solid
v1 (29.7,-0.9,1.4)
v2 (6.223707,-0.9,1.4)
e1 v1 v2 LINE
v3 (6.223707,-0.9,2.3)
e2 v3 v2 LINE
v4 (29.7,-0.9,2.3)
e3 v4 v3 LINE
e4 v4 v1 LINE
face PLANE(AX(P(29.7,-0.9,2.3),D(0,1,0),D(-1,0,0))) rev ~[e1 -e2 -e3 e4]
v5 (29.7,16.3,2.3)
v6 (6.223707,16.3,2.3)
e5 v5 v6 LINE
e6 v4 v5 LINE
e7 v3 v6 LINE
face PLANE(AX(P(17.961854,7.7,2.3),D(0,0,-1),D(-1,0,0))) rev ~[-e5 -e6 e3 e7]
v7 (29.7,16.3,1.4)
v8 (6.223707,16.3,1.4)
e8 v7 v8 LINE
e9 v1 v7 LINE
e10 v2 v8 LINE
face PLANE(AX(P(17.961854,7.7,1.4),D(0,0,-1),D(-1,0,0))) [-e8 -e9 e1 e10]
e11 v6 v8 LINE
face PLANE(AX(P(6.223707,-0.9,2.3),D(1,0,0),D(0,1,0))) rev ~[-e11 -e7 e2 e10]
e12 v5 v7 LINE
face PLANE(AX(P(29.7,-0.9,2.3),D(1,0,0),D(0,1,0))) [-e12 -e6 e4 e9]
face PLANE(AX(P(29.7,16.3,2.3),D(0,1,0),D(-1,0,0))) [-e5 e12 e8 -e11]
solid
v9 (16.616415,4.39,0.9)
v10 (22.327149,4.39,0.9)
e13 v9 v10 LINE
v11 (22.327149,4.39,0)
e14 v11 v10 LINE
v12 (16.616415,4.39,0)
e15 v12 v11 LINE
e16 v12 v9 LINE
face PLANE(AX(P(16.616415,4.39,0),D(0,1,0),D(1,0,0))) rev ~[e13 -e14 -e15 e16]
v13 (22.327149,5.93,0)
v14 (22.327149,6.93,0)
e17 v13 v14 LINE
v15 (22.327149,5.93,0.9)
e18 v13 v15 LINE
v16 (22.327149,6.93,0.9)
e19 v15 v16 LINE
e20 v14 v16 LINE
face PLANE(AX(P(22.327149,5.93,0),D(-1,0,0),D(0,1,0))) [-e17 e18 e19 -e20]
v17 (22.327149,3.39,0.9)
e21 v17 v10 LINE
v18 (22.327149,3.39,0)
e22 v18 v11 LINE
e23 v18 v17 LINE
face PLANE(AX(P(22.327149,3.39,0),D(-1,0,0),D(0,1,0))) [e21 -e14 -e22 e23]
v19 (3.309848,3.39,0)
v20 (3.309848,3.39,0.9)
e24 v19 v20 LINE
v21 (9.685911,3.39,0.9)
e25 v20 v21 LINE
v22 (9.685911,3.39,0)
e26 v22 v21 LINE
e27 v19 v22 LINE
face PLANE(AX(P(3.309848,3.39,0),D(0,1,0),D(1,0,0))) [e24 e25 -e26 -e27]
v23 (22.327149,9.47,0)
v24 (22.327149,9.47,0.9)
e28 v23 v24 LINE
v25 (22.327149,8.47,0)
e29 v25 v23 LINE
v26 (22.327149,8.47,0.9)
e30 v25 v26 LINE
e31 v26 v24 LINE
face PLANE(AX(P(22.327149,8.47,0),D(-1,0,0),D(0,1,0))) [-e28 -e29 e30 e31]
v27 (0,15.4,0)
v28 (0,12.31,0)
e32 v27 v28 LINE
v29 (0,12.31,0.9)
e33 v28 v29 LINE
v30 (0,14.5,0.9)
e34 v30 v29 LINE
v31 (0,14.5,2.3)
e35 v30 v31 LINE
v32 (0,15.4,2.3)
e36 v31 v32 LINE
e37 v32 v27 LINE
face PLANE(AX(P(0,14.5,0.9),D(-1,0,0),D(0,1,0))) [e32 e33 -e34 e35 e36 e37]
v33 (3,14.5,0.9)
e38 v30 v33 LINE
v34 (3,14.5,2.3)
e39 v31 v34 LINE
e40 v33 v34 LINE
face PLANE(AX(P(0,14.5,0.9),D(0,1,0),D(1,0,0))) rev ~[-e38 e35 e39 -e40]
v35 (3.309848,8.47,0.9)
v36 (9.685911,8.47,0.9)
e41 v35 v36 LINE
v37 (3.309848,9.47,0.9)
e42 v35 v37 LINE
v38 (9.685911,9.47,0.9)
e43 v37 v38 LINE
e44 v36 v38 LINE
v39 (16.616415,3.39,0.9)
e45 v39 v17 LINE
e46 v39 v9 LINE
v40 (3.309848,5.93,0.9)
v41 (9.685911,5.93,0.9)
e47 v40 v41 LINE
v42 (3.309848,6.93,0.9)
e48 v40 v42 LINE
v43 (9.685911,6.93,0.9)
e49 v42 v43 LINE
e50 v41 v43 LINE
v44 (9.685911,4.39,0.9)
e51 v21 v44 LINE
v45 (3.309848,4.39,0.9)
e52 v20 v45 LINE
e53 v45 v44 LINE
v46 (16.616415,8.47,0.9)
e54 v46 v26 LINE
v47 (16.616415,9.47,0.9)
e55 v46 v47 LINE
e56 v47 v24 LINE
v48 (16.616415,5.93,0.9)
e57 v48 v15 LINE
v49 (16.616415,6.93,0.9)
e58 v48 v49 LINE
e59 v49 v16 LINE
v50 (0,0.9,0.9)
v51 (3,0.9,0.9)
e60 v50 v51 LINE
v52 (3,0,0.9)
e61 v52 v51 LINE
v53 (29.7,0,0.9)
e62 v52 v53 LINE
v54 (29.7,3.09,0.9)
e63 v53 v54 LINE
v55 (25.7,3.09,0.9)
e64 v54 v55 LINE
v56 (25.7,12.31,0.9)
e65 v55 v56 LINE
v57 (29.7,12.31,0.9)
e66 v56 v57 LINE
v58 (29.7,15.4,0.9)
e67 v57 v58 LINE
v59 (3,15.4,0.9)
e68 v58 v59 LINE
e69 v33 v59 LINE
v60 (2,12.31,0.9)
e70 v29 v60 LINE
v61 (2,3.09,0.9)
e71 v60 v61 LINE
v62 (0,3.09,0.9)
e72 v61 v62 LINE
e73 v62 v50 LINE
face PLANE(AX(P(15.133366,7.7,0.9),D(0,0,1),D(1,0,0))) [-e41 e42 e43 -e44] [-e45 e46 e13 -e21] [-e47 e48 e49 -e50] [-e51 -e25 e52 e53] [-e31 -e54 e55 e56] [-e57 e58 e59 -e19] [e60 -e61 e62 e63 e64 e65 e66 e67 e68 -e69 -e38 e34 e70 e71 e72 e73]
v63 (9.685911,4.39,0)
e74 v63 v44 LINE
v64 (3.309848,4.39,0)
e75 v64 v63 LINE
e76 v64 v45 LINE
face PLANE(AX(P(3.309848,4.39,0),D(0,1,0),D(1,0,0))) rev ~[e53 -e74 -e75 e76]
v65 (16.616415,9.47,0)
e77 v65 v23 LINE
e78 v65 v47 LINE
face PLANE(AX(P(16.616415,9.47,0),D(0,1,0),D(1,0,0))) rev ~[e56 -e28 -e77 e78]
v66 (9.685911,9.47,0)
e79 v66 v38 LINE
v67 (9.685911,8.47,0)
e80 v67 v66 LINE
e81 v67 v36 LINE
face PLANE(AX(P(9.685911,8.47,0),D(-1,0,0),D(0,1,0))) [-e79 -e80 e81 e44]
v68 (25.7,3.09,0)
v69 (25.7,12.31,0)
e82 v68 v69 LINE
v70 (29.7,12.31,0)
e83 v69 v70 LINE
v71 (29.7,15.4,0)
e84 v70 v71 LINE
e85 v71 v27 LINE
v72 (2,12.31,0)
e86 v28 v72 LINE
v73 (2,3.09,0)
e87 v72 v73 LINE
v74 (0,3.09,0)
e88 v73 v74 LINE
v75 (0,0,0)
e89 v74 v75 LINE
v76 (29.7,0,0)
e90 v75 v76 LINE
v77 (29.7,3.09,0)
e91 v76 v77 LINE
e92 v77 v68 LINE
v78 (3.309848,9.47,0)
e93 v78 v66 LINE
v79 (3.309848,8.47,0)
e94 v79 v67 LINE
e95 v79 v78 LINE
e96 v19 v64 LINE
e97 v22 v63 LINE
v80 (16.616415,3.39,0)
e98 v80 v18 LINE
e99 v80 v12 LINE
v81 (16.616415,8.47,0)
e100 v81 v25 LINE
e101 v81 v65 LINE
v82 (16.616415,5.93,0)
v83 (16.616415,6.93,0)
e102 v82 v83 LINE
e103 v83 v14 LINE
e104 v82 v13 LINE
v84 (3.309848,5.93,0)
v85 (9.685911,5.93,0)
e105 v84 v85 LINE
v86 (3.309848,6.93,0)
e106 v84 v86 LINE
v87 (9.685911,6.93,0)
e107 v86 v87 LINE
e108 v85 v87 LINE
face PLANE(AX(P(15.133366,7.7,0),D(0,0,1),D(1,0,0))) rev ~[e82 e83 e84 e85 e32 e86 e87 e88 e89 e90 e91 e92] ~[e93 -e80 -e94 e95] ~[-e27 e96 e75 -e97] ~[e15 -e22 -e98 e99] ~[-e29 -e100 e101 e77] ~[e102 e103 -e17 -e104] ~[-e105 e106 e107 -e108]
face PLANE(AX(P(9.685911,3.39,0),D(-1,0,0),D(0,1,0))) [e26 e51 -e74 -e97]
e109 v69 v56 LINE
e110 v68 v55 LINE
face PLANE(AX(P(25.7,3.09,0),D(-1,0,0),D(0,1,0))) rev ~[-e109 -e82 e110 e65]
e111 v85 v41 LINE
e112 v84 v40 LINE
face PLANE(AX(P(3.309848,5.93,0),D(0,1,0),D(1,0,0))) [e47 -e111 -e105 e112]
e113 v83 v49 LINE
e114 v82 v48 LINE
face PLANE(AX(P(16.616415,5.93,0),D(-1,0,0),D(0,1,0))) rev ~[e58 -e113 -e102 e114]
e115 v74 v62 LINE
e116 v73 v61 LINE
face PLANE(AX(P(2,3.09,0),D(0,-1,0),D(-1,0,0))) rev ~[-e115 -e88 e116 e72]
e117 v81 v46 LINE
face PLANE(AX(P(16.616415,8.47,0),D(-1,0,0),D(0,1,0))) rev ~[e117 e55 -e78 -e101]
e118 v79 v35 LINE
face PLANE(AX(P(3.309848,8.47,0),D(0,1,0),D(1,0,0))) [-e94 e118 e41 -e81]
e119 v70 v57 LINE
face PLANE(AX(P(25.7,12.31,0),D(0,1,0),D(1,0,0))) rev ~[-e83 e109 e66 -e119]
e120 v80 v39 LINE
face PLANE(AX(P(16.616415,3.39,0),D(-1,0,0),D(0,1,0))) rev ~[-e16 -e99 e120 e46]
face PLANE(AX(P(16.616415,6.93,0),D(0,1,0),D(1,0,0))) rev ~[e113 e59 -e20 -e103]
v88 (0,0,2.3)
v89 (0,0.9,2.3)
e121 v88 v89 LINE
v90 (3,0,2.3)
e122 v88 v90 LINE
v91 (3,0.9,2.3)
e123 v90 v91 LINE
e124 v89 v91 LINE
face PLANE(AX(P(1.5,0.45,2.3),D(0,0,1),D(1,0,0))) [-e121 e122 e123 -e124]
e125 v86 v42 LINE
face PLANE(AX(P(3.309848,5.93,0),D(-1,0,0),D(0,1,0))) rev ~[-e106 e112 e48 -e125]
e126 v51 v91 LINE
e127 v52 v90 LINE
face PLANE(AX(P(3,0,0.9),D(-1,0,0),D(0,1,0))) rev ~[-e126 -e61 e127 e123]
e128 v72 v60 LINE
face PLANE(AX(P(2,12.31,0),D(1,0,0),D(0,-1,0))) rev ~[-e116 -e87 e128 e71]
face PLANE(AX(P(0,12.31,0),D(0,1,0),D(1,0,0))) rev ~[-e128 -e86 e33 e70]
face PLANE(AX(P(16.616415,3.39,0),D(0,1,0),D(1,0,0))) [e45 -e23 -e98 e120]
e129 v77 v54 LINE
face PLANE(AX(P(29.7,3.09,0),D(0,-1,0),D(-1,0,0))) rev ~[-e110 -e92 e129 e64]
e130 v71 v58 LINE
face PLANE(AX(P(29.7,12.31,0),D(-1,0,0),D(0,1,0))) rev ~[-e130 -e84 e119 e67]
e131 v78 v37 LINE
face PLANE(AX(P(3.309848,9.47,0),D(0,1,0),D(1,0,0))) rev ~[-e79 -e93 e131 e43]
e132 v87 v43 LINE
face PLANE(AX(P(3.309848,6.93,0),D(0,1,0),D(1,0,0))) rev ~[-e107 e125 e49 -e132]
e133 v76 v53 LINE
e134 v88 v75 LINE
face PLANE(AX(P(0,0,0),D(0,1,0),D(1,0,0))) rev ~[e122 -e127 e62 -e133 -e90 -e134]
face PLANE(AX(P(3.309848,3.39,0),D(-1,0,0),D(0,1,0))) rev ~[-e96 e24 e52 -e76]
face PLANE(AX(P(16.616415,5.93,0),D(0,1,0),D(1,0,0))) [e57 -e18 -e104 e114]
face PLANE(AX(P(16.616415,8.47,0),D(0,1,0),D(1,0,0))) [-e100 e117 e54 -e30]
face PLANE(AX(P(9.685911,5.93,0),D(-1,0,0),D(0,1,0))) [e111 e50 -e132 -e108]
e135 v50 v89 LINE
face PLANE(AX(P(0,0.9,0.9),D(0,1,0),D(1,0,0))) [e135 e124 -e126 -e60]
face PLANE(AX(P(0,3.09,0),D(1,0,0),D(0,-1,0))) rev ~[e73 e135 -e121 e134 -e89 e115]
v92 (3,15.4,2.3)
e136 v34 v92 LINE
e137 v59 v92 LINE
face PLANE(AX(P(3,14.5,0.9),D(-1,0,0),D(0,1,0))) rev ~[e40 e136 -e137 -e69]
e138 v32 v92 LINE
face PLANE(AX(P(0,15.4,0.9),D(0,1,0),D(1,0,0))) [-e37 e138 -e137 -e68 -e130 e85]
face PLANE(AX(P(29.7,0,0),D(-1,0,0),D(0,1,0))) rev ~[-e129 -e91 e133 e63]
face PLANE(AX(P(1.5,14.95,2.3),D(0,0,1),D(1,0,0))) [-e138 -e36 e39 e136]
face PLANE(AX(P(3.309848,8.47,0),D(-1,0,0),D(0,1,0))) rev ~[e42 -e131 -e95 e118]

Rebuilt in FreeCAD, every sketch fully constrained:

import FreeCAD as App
import Part
import Sketcher


def add_polygon(sketch, points):
    """Adds a closed chain of lines whose ends are joined by coincident constraints."""
    first, n = sketch.GeometryCount, len(points)
    for a, b in zip(points, points[1:] + points[:1]):
        sketch.addGeometry(Part.LineSegment(App.Vector(*a, 0), App.Vector(*b, 0)), False)
    for i in range(n):
        sketch.addConstraint(Sketcher.Constraint("Coincident", first + i, 2, first + (i + 1) % n, 1))

doc = App.newDocument("Part")
body = doc.addObject("PartDesign::Body", "Body")

sketch1 = doc.addObject("Sketcher::SketchObject", "Sketch")
body.addObject(sketch1)
sketch1.AttachmentSupport = (doc.XY_Plane, [""])
sketch1.MapMode = "FlatFace"
add_polygon(sketch1, [(29.7, 12.3), (29.7, 15.4), (0, 15.4), (0, 12.3), (2, 12.3), (2, 3.1), (0, 3.1), (0, 0), (29.7, 0), (29.7, 3.1), (25.7, 3.1), (25.7, 12.3)])
add_polygon(sketch1, [(9.7, 3.4), (3.3, 3.4), (3.3, 4.4), (9.7, 4.4)])
add_polygon(sketch1, [(9.7, 5.9), (3.3, 5.9), (3.3, 6.9), (9.7, 6.9)])
add_polygon(sketch1, [(22.3, 3.4), (16.6, 3.4), (16.6, 4.4), (22.3, 4.4)])
add_polygon(sketch1, [(22.3, 5.9), (16.6, 5.9), (16.6, 6.9), (22.3, 6.9)])
add_polygon(sketch1, [(9.7, 8.5), (3.3, 8.5), (3.3, 9.5), (9.7, 9.5)])
add_polygon(sketch1, [(22.3, 8.5), (16.6, 8.5), (16.6, 9.5), (22.3, 9.5)])
sketch1.addConstraint(Sketcher.Constraint("Vertical", 0))
sketch1.addConstraint(Sketcher.Constraint("Horizontal", 1))
sketch1.addConstraint(Sketcher.Constraint("Vertical", 2))
sketch1.addConstraint(Sketcher.Constraint("Horizontal", 3))
sketch1.addConstraint(Sketcher.Constraint("Vertical", 4))
sketch1.addConstraint(Sketcher.Constraint("Horizontal", 5))
sketch1.addConstraint(Sketcher.Constraint("Vertical", 6))
sketch1.addConstraint(Sketcher.Constraint("Horizontal", 7))
sketch1.addConstraint(Sketcher.Constraint("Vertical", 8))
sketch1.addConstraint(Sketcher.Constraint("Horizontal", 9))
sketch1.addConstraint(Sketcher.Constraint("Vertical", 10))
sketch1.addConstraint(Sketcher.Constraint("Horizontal", 11))
sketch1.addConstraint(Sketcher.Constraint("Horizontal", 12))
sketch1.addConstraint(Sketcher.Constraint("Vertical", 13))
sketch1.addConstraint(Sketcher.Constraint("Horizontal", 14))
sketch1.addConstraint(Sketcher.Constraint("Vertical", 15))
sketch1.addConstraint(Sketcher.Constraint("Horizontal", 16))
sketch1.addConstraint(Sketcher.Constraint("Vertical", 17))
sketch1.addConstraint(Sketcher.Constraint("Horizontal", 18))
sketch1.addConstraint(Sketcher.Constraint("Vertical", 19))
sketch1.addConstraint(Sketcher.Constraint("Horizontal", 20))
sketch1.addConstraint(Sketcher.Constraint("Vertical", 21))
sketch1.addConstraint(Sketcher.Constraint("Horizontal", 22))
sketch1.addConstraint(Sketcher.Constraint("Vertical", 23))
sketch1.addConstraint(Sketcher.Constraint("Horizontal", 24))
sketch1.addConstraint(Sketcher.Constraint("Vertical", 25))
sketch1.addConstraint(Sketcher.Constraint("Horizontal", 26))
sketch1.addConstraint(Sketcher.Constraint("Vertical", 27))
sketch1.addConstraint(Sketcher.Constraint("Horizontal", 28))
sketch1.addConstraint(Sketcher.Constraint("Vertical", 29))
sketch1.addConstraint(Sketcher.Constraint("Horizontal", 30))
sketch1.addConstraint(Sketcher.Constraint("Vertical", 31))
sketch1.addConstraint(Sketcher.Constraint("Horizontal", 32))
sketch1.addConstraint(Sketcher.Constraint("Vertical", 33))
sketch1.addConstraint(Sketcher.Constraint("Horizontal", 34))
sketch1.addConstraint(Sketcher.Constraint("Vertical", 35))
sketch1.addConstraint(Sketcher.Constraint("Coincident", 6, 2, -1, 1))
sketch1.addConstraint(Sketcher.Constraint("PointOnObject", 1, 2, -2))
sketch1.addConstraint(Sketcher.Constraint("Horizontal", 5, 2, 8, 2))
sketch1.addConstraint(Sketcher.Constraint("Horizontal", 3, 2, 10, 2))
sketch1.addConstraint(Sketcher.Constraint("Horizontal", 15, 2, 20, 2))
sketch1.addConstraint(Sketcher.Constraint("Horizontal", 14, 2, 21, 2))
sketch1.addConstraint(Sketcher.Constraint("Horizontal", 19, 2, 24, 2))
sketch1.addConstraint(Sketcher.Constraint("Horizontal", 18, 2, 25, 2))
sketch1.addConstraint(Sketcher.Constraint("Horizontal", 31, 2, 32, 2))
sketch1.addConstraint(Sketcher.Constraint("Horizontal", 30, 2, 33, 2))
sketch1.addConstraint(Sketcher.Constraint("Vertical", 0, 2, 7, 2))
sketch1.addConstraint(Sketcher.Constraint("Vertical", 13, 2, 16, 2))
sketch1.addConstraint(Sketcher.Constraint("Vertical", 15, 2, 18, 2))
sketch1.addConstraint(Sketcher.Constraint("Vertical", 21, 2, 24, 2))
sketch1.addConstraint(Sketcher.Constraint("Vertical", 23, 2, 26, 2))
sketch1.addConstraint(Sketcher.Constraint("Vertical", 17, 2, 28, 2))
sketch1.addConstraint(Sketcher.Constraint("Vertical", 19, 2, 30, 2))
sketch1.addConstraint(Sketcher.Constraint("Vertical", 25, 2, 32, 2))
sketch1.addConstraint(Sketcher.Constraint("Vertical", 27, 2, 34, 2))
sketch1.addConstraint(Sketcher.Constraint("Equal", 2, 6))
sketch1.addConstraint(Sketcher.Constraint("Equal", 15, 17))
sketch1.addConstraint(Sketcher.Constraint("Equal", 27, 29))
sketch1.addConstraint(Sketcher.Constraint("DistanceX", 3, 1, 3, 2, 2.0))
sketch1.addConstraint(Sketcher.Constraint("DistanceX", 9, 2, 9, 1, 4.0))
sketch1.addConstraint(Sketcher.Constraint("DistanceY", 13, 1, 13, 2, 1.0))
sketch1.addConstraint(Sketcher.Constraint("DistanceX", 1, 2, 1, 1, 29.7))
sketch1.addConstraint(Sketcher.Constraint("DistanceY", 0, 1, 0, 2, 3.09))
sketch1.addConstraint(Sketcher.Constraint("DistanceY", 4, 2, 4, 1, 9.22))
sketch1.addConstraint(Sketcher.Constraint("DistanceY", 4, 2, 12, 2, 0.3))
sketch1.addConstraint(Sketcher.Constraint("DistanceY", -1, 1, 16, 2, 5.93))
sketch1.addConstraint(Sketcher.Constraint("DistanceY", -1, 1, 28, 2, 8.47))
sketch1.addConstraint(Sketcher.Constraint("DistanceX", 12, 2, 12, 1, 6.376063))
sketch1.addConstraint(Sketcher.Constraint("DistanceX", 20, 2, 20, 1, 5.710735))
sketch1.addConstraint(Sketcher.Constraint("DistanceX", -1, 1, 12, 2, 3.309848))
sketch1.addConstraint(Sketcher.Constraint("DistanceX", -1, 1, 22, 2, 22.327149))
pad1 = doc.addObject("PartDesign::Pad", "Pad")
body.addObject(pad1)
pad1.Profile = sketch1
pad1.Length = 0.9

sketch2 = doc.addObject("Sketcher::SketchObject", "Sketch001")
body.addObject(sketch2)
sketch2.AttachmentSupport = (doc.XY_Plane, [""])
sketch2.MapMode = "FlatFace"
sketch2.AttachmentOffset = App.Placement(App.Vector(0, 0, 0.9), App.Rotation())
add_polygon(sketch2, [(0, 15.4), (0, 14.5), (3, 14.5), (3, 15.4)])
add_polygon(sketch2, [(0, 0.9), (0, 0), (3, 0), (3, 0.9)])
sketch2.addConstraint(Sketcher.Constraint("Vertical", 0))
sketch2.addConstraint(Sketcher.Constraint("Horizontal", 1))
sketch2.addConstraint(Sketcher.Constraint("Vertical", 2))
sketch2.addConstraint(Sketcher.Constraint("Horizontal", 3))
sketch2.addConstraint(Sketcher.Constraint("Vertical", 4))
sketch2.addConstraint(Sketcher.Constraint("Horizontal", 5))
sketch2.addConstraint(Sketcher.Constraint("Vertical", 6))
sketch2.addConstraint(Sketcher.Constraint("Horizontal", 7))
sketch2.addConstraint(Sketcher.Constraint("Coincident", 4, 2, -1, 1))
sketch2.addConstraint(Sketcher.Constraint("PointOnObject", 0, 2, -2))
sketch2.addConstraint(Sketcher.Constraint("Vertical", 2, 2, 5, 2))
sketch2.addConstraint(Sketcher.Constraint("Equal", 2, 4))
sketch2.addConstraint(Sketcher.Constraint("DistanceX", 1, 1, 1, 2, 3.0))
sketch2.addConstraint(Sketcher.Constraint("DistanceY", 0, 2, 0, 1, 0.9))
sketch2.addConstraint(Sketcher.Constraint("DistanceY", -1, 1, 0, 2, 14.5))
pad2 = doc.addObject("PartDesign::Pad", "Pad001")
body.addObject(pad2)
pad2.Profile = sketch2
pad2.Length = 1.4
body2 = doc.addObject("PartDesign::Body", "Body001")

sketch3 = doc.addObject("Sketcher::SketchObject", "Sketch002")
body2.addObject(sketch3)
sketch3.AttachmentSupport = (doc.getObject("XY_Plane001"), [""])
sketch3.MapMode = "FlatFace"
sketch3.AttachmentOffset = App.Placement(App.Vector(0, 0, 2.3), App.Rotation())
add_polygon(sketch3, [(30, 16), (30, -1), (6, -1), (6, 16)])
sketch3.addConstraint(Sketcher.Constraint("Vertical", 0))
sketch3.addConstraint(Sketcher.Constraint("Horizontal", 1))
sketch3.addConstraint(Sketcher.Constraint("Vertical", 2))
sketch3.addConstraint(Sketcher.Constraint("Horizontal", 3))
sketch3.addConstraint(Sketcher.Constraint("DistanceY", 0, 2, 0, 1, 17.2))
sketch3.addConstraint(Sketcher.Constraint("DistanceX", -1, 1, 0, 2, 29.7))
sketch3.addConstraint(Sketcher.Constraint("DistanceY", 0, 2, -1, 1, 0.9))
sketch3.addConstraint(Sketcher.Constraint("DistanceX", 1, 2, 1, 1, 23.476293))
pad3 = doc.addObject("PartDesign::Pad", "Pad002")
body2.addObject(pad3)
pad3.Profile = sketch3
pad3.Length = 0.9
pad3.Reversed = True

doc.recompute()
